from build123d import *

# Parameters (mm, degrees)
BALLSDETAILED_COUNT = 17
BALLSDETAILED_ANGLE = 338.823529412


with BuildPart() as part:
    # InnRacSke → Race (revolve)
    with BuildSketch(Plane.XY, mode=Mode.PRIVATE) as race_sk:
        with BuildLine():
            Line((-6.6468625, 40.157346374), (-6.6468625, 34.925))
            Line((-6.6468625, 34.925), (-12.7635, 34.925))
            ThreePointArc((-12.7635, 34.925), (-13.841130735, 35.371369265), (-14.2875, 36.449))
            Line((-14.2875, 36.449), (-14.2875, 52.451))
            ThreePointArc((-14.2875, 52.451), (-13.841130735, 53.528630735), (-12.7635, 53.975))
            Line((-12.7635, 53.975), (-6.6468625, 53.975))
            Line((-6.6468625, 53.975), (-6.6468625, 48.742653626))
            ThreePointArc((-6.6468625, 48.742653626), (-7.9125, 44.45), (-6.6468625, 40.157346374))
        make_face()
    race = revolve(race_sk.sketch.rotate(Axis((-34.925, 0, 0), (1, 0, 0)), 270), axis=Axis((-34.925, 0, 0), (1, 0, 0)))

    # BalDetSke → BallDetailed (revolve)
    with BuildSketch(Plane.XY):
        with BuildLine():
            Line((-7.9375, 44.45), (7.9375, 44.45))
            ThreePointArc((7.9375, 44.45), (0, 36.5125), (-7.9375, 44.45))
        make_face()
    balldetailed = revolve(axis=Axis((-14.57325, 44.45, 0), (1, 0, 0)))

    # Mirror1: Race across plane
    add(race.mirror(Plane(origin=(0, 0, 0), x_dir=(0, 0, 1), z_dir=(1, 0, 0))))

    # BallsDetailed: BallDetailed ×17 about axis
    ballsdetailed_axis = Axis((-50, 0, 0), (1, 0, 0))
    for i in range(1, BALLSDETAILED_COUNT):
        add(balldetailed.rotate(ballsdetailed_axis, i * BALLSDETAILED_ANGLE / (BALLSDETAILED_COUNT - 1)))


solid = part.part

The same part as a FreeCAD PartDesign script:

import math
import FreeCAD as App
import Part
import Sketcher

V = App.Vector
Q = App.Units.Quantity

doc = App.newDocument("Part")
body = doc.addObject("PartDesign::Body", "Body")

# Sketch on XY plane
sketch1 = body.newObject("Sketcher::SketchObject", "Sketch")
sketch1.AttachmentSupport = (doc.getObject("XY_Plane"), [""])
sketch1.MapMode = "FlatFace"
sketch1.addGeometry(Part.LineSegment(V(-6.6, 34.9, 0), V(-6.6, 40.2, 0)), False)
sketch1.addGeometry(Part.ArcOfCircle(Part.Circle(V(0, 44.5, 0), V(0, 0, 1), 7.9), math.radians(147), math.radians(213)), False)
sketch1.addGeometry(Part.LineSegment(V(-6.6, 48.7, 0), V(-6.6, 54, 0)), False)
sketch1.addGeometry(Part.LineSegment(V(-6.6, 54, 0), V(-12.8, 54, 0)), False)
sketch1.addGeometry(Part.ArcOfCircle(Part.Circle(V(-12.8, 52.5, 0), V(0, 0, 1), 1.5), math.radians(90), math.radians(180)), False)
sketch1.addGeometry(Part.LineSegment(V(-14.3, 52.5, 0), V(-14.3, 36.4, 0)), False)
sketch1.addGeometry(Part.ArcOfCircle(Part.Circle(V(-12.8, 36.4, 0), V(0, 0, 1), 1.5), math.radians(180), math.radians(270)), False)
sketch1.addGeometry(Part.LineSegment(V(-12.8, 34.9, 0), V(-6.6, 34.9, 0)), False)
sketch1.addConstraint(Sketcher.Constraint("Coincident", 0, 2, 1, 2))
sketch1.addConstraint(Sketcher.Constraint("Coincident", 1, 1, 2, 1))
sketch1.addConstraint(Sketcher.Constraint("Coincident", 2, 2, 3, 1))
sketch1.addConstraint(Sketcher.Constraint("Tangent", 3, 2, 4, 1))
sketch1.addConstraint(Sketcher.Constraint("Tangent", 4, 2, 5, 1))
sketch1.addConstraint(Sketcher.Constraint("Tangent", 5, 2, 6, 1))
sketch1.addConstraint(Sketcher.Constraint("Tangent", 6, 2, 7, 1))
sketch1.addConstraint(Sketcher.Constraint("Coincident", 7, 2, 0, 1))
sketch1.addConstraint(Sketcher.Constraint("Vertical", 0))
sketch1.addConstraint(Sketcher.Constraint("Vertical", 2))
sketch1.addConstraint(Sketcher.Constraint("Horizontal", 3))
sketch1.addConstraint(Sketcher.Constraint("Vertical", 5))
sketch1.addConstraint(Sketcher.Constraint("Horizontal", 7))
sketch1.addConstraint(Sketcher.Constraint("Equal", 4, 6))
sketch1.addConstraint(Sketcher.Constraint("PointOnObject", 1, 3, -2))
sketch1.addConstraint(Sketcher.Constraint("Vertical", 0, 2, 1, 1))
sketch1.addConstraint(Sketcher.Constraint("Equal", 0, 2))
sketch1.addConstraint(Sketcher.Constraint("Radius", 4, Q("0.06 in")))
sketch1.addConstraint(Sketcher.Constraint("DistanceY", 5, 2, 5, 1, Q("0.63 in")))
sketch1.addConstraint(Sketcher.Constraint("DistanceY", -1, 1, 1, 3, Q("1.75 in")))
sketch1.addConstraint(Sketcher.Constraint("Radius", 1, 7.9125))
sketch1.addConstraint(Sketcher.Constraint("DistanceX", 4, 2, -1, 1, Q("0.5625 in")))
sketch1.addConstraint(Sketcher.Constraint("DistanceX", 3, 2, 3, 1, 6.116638))
revolution = body.newObject("PartDesign::Revolution", "Revolution")
revolution.Profile = sketch1
revolution.ReferenceAxis = (sketch1, ["H_Axis"])
revolution.Angle = 360

# Sketch on XY plane
sketch2 = body.newObject("Sketcher::SketchObject", "Sketch001")
sketch2.AttachmentSupport = (doc.getObject("XY_Plane"), [""])
sketch2.MapMode = "FlatFace"
sketch2.addGeometry(Part.LineSegment(V(8, 44, 0), V(-8, 44, 0)), False)
sketch2.addGeometry(Part.ArcOfCircle(Part.Circle(V(0, 44, 0), V(0, 0, 1), 8), math.radians(180), math.radians(360)), False)
sketch2.addGeometry(Part.LineSegment(V(-8, 44, 0), V(8, 44, 0)), True)  # axis
sketch2.addConstraint(Sketcher.Constraint("Coincident", 0, 1, 1, 2))
sketch2.addConstraint(Sketcher.Constraint("Coincident", 1, 1, 0, 2))
sketch2.addConstraint(Sketcher.Constraint("Horizontal", 0))
sketch2.addConstraint(Sketcher.Constraint("Horizontal", 2))
sketch2.addConstraint(Sketcher.Constraint("Coincident", 2, 1, 1, 1))
sketch2.addConstraint(Sketcher.Constraint("PointOnObject", 1, 3, -2))
sketch2.addConstraint(Sketcher.Constraint("Horizontal", 1, 3, 0, 1))
sketch2.addConstraint(Sketcher.Constraint("Equal", 0, 2))
sketch2.addConstraint(Sketcher.Constraint("Radius", 1, Q("0.3125 in")))
sketch2.addConstraint(Sketcher.Constraint("DistanceY", -1, 1, 1, 3, Q("1.75 in")))
revolution2 = body.newObject("PartDesign::Revolution", "Revolution001")
revolution2.Profile = sketch2
revolution2.ReferenceAxis = (sketch2, ["Axis0"])
revolution2.Angle = 360
doc.recompute()

mirrored = body.newObject("PartDesign::Mirrored", "Mirrored")
mirrored.Originals = [revolution]
mirrored.MirrorPlane = (doc.getObject("YZ_Plane"), [""])
body.Tip = mirrored
doc.recompute()

polarpattern = body.newObject("PartDesign::PolarPattern", "PolarPattern")
polarpattern.Originals = [revolution2]
polarpattern.Axis = (doc.getObject("X_Axis"), [""])
polarpattern.Angle = 360
polarpattern.Occurrences = 17
body.Tip = polarpattern

doc.recompute()
